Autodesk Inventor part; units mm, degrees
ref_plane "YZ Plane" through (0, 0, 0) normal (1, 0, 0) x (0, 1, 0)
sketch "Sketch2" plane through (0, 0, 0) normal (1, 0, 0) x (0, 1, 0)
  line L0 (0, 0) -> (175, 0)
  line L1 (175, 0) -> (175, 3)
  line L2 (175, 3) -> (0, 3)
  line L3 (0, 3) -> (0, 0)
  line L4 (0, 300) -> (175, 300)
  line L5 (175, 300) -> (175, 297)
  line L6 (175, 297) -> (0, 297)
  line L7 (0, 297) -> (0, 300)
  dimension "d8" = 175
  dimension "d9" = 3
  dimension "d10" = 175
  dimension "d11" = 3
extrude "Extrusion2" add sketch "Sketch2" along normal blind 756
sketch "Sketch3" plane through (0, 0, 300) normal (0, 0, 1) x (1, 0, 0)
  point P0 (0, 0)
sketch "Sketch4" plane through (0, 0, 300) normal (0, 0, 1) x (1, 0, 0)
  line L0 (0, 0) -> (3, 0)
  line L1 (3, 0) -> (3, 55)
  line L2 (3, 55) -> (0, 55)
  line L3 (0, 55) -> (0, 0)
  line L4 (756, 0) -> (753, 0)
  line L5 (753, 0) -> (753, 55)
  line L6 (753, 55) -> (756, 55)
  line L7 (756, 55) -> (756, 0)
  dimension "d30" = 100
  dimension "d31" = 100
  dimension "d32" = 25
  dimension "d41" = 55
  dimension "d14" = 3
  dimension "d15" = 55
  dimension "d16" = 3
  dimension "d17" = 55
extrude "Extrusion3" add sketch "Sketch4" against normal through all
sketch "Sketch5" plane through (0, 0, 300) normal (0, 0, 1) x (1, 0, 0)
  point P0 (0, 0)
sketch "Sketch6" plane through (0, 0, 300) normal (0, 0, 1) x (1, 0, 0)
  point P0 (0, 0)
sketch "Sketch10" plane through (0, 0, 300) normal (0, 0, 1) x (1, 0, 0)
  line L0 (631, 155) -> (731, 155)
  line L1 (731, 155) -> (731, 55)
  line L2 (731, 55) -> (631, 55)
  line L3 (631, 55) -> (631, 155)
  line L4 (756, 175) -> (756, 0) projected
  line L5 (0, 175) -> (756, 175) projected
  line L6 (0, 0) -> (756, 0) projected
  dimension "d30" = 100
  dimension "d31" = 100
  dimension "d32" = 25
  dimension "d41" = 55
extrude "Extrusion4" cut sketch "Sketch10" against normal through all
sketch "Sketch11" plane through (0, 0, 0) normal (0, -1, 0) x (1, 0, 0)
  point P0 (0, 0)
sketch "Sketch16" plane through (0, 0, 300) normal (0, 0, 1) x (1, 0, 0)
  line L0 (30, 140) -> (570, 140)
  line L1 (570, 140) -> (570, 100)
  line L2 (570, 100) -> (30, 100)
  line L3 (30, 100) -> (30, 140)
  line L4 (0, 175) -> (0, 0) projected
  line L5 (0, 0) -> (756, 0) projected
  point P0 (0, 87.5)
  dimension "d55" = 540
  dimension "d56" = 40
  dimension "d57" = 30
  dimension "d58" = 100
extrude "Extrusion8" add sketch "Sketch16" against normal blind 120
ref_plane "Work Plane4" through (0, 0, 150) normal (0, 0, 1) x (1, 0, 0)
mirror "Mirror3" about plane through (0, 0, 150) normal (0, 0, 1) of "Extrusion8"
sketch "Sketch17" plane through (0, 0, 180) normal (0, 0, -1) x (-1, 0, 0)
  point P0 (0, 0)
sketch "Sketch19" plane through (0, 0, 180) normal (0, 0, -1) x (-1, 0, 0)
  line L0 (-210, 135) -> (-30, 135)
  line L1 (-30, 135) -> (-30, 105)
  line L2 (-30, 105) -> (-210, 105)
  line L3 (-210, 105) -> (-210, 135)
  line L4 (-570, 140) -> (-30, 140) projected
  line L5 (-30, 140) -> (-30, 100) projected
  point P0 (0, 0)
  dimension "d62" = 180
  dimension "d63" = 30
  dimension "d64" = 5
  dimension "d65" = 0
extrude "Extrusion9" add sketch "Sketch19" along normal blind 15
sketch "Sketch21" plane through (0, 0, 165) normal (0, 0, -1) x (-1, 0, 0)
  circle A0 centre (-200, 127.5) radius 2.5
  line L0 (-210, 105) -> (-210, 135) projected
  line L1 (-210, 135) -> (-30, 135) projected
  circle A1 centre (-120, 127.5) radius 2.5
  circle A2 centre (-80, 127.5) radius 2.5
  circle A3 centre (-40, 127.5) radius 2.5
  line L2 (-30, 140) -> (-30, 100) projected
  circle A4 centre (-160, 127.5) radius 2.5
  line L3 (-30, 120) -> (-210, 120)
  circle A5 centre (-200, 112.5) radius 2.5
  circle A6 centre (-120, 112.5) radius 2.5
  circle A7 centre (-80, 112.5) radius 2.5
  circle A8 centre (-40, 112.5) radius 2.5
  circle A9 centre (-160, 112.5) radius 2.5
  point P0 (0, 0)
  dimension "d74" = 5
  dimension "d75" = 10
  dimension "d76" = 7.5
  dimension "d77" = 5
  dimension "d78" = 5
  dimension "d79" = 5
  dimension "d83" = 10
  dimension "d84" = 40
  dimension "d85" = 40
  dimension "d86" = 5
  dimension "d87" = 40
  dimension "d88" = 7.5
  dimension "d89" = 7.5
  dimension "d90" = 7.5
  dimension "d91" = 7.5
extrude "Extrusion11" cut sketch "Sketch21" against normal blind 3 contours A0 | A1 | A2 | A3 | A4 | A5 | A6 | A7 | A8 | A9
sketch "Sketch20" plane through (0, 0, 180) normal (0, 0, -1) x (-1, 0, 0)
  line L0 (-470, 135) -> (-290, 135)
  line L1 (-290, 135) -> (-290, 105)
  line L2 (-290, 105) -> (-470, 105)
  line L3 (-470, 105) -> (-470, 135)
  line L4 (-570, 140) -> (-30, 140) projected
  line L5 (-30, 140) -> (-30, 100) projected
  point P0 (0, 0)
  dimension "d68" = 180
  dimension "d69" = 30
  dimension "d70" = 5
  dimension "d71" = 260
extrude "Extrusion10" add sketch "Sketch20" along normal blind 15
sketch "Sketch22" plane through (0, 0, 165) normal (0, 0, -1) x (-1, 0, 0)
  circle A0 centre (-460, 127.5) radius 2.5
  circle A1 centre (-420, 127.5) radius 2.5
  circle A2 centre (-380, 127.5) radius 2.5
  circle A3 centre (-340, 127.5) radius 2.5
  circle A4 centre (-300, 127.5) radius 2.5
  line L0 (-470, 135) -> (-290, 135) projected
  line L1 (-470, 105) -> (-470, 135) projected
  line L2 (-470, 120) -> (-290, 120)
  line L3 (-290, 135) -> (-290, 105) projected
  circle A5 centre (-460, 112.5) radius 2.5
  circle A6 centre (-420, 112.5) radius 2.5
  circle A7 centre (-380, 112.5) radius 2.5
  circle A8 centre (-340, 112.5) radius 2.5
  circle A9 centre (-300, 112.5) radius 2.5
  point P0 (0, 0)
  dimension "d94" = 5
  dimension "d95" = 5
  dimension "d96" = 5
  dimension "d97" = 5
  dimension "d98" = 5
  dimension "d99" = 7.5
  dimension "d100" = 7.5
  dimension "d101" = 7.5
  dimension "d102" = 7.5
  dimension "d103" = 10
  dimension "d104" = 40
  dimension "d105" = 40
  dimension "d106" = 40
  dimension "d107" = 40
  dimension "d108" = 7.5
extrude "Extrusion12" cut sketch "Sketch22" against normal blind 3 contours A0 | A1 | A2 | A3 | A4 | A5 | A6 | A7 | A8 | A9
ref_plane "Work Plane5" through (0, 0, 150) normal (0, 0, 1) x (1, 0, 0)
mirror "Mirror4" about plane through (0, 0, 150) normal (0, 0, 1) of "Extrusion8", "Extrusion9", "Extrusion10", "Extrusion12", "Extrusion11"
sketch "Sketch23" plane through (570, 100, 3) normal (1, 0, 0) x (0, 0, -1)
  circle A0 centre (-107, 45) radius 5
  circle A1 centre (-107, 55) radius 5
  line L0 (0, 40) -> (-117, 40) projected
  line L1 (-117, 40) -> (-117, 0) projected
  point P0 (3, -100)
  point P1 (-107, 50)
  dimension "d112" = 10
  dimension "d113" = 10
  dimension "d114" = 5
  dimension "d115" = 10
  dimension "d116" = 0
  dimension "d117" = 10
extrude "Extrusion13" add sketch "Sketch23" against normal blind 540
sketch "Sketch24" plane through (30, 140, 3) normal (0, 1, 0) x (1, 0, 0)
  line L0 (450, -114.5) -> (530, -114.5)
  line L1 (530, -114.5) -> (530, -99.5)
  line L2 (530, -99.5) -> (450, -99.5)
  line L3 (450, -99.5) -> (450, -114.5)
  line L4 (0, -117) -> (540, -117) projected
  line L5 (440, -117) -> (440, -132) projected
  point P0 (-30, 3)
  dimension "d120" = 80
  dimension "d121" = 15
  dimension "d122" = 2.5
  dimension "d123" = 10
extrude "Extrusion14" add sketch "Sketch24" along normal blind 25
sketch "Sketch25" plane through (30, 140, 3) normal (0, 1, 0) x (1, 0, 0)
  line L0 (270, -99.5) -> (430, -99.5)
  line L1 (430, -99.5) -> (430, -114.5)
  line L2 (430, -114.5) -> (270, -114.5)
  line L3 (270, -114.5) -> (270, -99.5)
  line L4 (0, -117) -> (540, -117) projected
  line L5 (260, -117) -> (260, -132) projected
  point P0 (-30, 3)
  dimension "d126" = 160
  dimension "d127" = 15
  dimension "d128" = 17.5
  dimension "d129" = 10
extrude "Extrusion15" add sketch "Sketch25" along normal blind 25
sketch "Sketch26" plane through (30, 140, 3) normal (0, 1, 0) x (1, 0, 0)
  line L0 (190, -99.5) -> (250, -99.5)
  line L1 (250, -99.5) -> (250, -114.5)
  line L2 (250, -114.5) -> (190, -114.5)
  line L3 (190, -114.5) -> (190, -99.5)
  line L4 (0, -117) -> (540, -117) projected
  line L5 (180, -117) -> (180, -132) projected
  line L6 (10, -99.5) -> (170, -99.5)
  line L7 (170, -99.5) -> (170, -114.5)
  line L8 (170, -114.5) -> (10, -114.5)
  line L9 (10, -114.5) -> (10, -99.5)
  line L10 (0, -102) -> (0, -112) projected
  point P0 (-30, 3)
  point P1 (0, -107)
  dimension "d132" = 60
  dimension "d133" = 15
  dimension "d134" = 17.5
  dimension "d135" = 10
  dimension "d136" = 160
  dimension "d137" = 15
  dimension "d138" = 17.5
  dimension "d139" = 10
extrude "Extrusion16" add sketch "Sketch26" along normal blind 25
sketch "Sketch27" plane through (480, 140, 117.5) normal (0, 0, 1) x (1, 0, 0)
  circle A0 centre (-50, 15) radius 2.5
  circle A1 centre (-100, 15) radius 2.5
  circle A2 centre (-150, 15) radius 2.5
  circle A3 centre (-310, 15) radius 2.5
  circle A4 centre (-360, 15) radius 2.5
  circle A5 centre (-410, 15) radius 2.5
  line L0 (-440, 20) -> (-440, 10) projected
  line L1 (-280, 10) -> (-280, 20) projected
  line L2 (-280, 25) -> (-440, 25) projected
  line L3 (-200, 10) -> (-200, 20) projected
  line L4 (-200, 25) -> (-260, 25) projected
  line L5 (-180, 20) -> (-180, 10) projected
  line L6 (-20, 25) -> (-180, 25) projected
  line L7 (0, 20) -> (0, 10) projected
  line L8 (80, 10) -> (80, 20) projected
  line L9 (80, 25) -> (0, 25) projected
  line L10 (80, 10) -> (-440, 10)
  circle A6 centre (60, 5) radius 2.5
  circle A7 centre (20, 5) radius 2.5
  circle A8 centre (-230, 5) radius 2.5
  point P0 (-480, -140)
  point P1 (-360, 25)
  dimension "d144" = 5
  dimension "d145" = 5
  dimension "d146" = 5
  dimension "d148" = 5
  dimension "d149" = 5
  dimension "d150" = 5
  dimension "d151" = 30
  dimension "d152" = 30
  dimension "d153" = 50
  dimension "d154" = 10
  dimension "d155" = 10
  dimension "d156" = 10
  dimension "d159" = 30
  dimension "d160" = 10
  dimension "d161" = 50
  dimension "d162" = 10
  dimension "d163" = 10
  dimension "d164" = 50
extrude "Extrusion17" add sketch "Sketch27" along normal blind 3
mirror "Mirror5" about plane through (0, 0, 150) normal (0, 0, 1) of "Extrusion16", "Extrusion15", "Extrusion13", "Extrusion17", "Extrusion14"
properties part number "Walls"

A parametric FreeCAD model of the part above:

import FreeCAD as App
import Part
import Sketcher

V = App.Vector


def add_polygon(sketch, points):
    """Adds a closed chain of lines whose ends are joined by coincident constraints."""
    first, n = sketch.GeometryCount, len(points)
    for a, b in zip(points, points[1:] + points[:1]):
        sketch.addGeometry(Part.LineSegment(App.Vector(*a, 0), App.Vector(*b, 0)), False)
    for i in range(n):
        sketch.addConstraint(Sketcher.Constraint("Coincident", first + i, 2, first + (i + 1) % n, 1))

doc = App.newDocument("Part")
body = doc.addObject("PartDesign::Body", "Body")
body.AllowCompound = True

sketch1 = body.newObject("Sketcher::SketchObject", "Sketch")
sketch1.AttachmentSupport = (doc.getObject("YZ_Plane"), [""])
sketch1.MapMode = "FlatFace"
add_polygon(sketch1, [(0, 3), (0, 0), (175, 0), (175, 3)])
add_polygon(sketch1, [(175, 300), (0, 300), (0, 297), (175, 297)])
sketch1.addConstraint(Sketcher.Constraint("Vertical", 0))
sketch1.addConstraint(Sketcher.Constraint("Horizontal", 1))
sketch1.addConstraint(Sketcher.Constraint("Vertical", 2))
sketch1.addConstraint(Sketcher.Constraint("Horizontal", 3))
sketch1.addConstraint(Sketcher.Constraint("Horizontal", 4))
sketch1.addConstraint(Sketcher.Constraint("Vertical", 5))
sketch1.addConstraint(Sketcher.Constraint("Horizontal", 6))
sketch1.addConstraint(Sketcher.Constraint("Vertical", 7))
sketch1.addConstraint(Sketcher.Constraint("Coincident", 0, 2, -1, 1))
sketch1.addConstraint(Sketcher.Constraint("PointOnObject", 4, 2, -2))
sketch1.addConstraint(Sketcher.Constraint("Vertical", 2, 2, 6, 2))
sketch1.addConstraint(Sketcher.Constraint("Equal", 2, 5))
sketch1.addConstraint(Sketcher.Constraint("DistanceX", 1, 1, 1, 2, 175.0))
sketch1.addConstraint(Sketcher.Constraint("DistanceY", 0, 2, 0, 1, 3.0))
sketch1.addConstraint(Sketcher.Constraint("DistanceY", -1, 1, 4, 2, 300.0))
pad1 = body.newObject("PartDesign::Pad", "Pad")
pad1.Profile = sketch1
pad1.Length = 756

sketch2 = body.newObject("Sketcher::SketchObject", "Sketch001")
sketch2.AttachmentSupport = (doc.getObject("XY_Plane"), [""])
sketch2.MapMode = "FlatFace"
sketch2.AttachmentOffset = App.Placement(V(0, 0, 300), App.Rotation())
add_polygon(sketch2, [(0, 55), (0, 0), (3, 0), (3, 55)])
add_polygon(sketch2, [(753, 0), (756, 0), (756, 55), (753, 55)])
sketch2.addConstraint(Sketcher.Constraint("Vertical", 0))
sketch2.addConstraint(Sketcher.Constraint("Horizontal", 1))
sketch2.addConstraint(Sketcher.Constraint("Vertical", 2))
sketch2.addConstraint(Sketcher.Constraint("Horizontal", 3))
sketch2.addConstraint(Sketcher.Constraint("Horizontal", 4))
sketch2.addConstraint(Sketcher.Constraint("Vertical", 5))
sketch2.addConstraint(Sketcher.Constraint("Horizontal", 6))
sketch2.addConstraint(Sketcher.Constraint("Vertical", 7))
sketch2.addConstraint(Sketcher.Constraint("Coincident", 0, 2, -1, 1))
sketch2.addConstraint(Sketcher.Constraint("PointOnObject", 4, 2, -1))
sketch2.addConstraint(Sketcher.Constraint("Horizontal", 3, 2, 5, 2))
sketch2.addConstraint(Sketcher.Constraint("Equal", 3, 4))
sketch2.addConstraint(Sketcher.Constraint("DistanceX", 1, 1, 1, 2, 3.0))
sketch2.addConstraint(Sketcher.Constraint("DistanceY", 0, 2, 0, 1, 55.0))
sketch2.addConstraint(Sketcher.Constraint("DistanceX", -1, 1, 4, 2, 756.0))
pad2 = body.newObject("PartDesign::Pad", "Pad001")
pad2.Profile = sketch2
pad2.Type = "UpToLast"
pad2.Reversed = True

sketch3 = body.newObject("Sketcher::SketchObject", "Sketch002")
sketch3.AttachmentSupport = (doc.getObject("XY_Plane"), [""])
sketch3.MapMode = "FlatFace"
sketch3.AttachmentOffset = App.Placement(V(0, 0, 300), App.Rotation())
add_polygon(sketch3, [(731, 155), (631, 155), (631, 55), (731, 55)])
sketch3.addConstraint(Sketcher.Constraint("Horizontal", 0))
sketch3.addConstraint(Sketcher.Constraint("Vertical", 1))
sketch3.addConstraint(Sketcher.Constraint("Horizontal", 2))
sketch3.addConstraint(Sketcher.Constraint("Vertical", 3))
sketch3.addConstraint(Sketcher.Constraint("Equal", 2, 1))
sketch3.addConstraint(Sketcher.Constraint("DistanceX", 0, 2, 0, 1, 100.0))
sketch3.addConstraint(Sketcher.Constraint("DistanceY", -1, 1, 1, 2, 55.0))
sketch3.addConstraint(Sketcher.Constraint("DistanceX", -1, 1, 0, 2, 631.0))
pocket1 = body.newObject("PartDesign::Pocket", "Pocket")
pocket1.Profile = sketch3
pocket1.Type = "ThroughAll"

sketch4 = body.newObject("Sketcher::SketchObject", "Sketch003")
sketch4.AttachmentSupport = (doc.getObject("XY_Plane"), [""])
sketch4.MapMode = "FlatFace"
sketch4.AttachmentOffset = App.Placement(V(0, 0, 300), App.Rotation())
add_polygon(sketch4, [(570, 140), (30, 140), (30, 100), (570, 100)])
sketch4.addConstraint(Sketcher.Constraint("Horizontal", 0))
sketch4.addConstraint(Sketcher.Constraint("Vertical", 1))
sketch4.addConstraint(Sketcher.Constraint("Horizontal", 2))
sketch4.addConstraint(Sketcher.Constraint("Vertical", 3))
sketch4.addConstraint(Sketcher.Constraint("DistanceX", 0, 2, 0, 1, 540.0))
sketch4.addConstraint(Sketcher.Constraint("DistanceY", 1, 2, 1, 1, 40.0))
sketch4.addConstraint(Sketcher.Constraint("DistanceX", -1, 1, 0, 2, 30.0))
sketch4.addConstraint(Sketcher.Constraint("DistanceY", -1, 1, 1, 2, 100.0))
pad3 = body.newObject("PartDesign::Pad", "Pad002")
pad3.Profile = sketch4
pad3.Length = 120
pad3.Reversed = True
doc.recompute()

datumplane = body.newObject("PartDesign::Plane", "DatumPlane")
datumplane.AttachmentSupport = (doc.getObject("XY_Plane"), [""])
datumplane.MapMode = "FlatFace"
datumplane.AttachmentOffset = App.Placement(V(0, 0, 150), App.Rotation())
mirrored = body.newObject("PartDesign::Mirrored", "Mirrored")
mirrored.Originals = [pad3]
mirrored.MirrorPlane = (datumplane, [""])
body.Tip = mirrored

sketch5 = body.newObject("Sketcher::SketchObject", "Sketch004")
sketch5.AttachmentSupport = (doc.getObject("XY_Plane"), [""])
sketch5.MapMode = "FlatFace"
sketch5.AttachmentOffset = App.Placement(V(0, 0, 180), App.Rotation())
add_polygon(sketch5, [(30, 135), (210, 135), (210, 105), (30, 105)])
sketch5.addConstraint(Sketcher.Constraint("Horizontal", 0))
sketch5.addConstraint(Sketcher.Constraint("Vertical", 1))
sketch5.addConstraint(Sketcher.Constraint("Horizontal", 2))
sketch5.addConstraint(Sketcher.Constraint("Vertical", 3))
sketch5.addConstraint(Sketcher.Constraint("DistanceX", 0, 1, 0, 2, 180.0))
sketch5.addConstraint(Sketcher.Constraint("DistanceY", 1, 2, 1, 1, 30.0))
sketch5.addConstraint(Sketcher.Constraint("DistanceX", -1, 1, 2, 2, 30.0))
sketch5.addConstraint(Sketcher.Constraint("DistanceY", -1, 1, 0, 2, 135.0))
pad4 = body.newObject("PartDesign::Pad", "Pad003")
pad4.Profile = sketch5
pad4.Length = 15
pad4.Reversed = True

sketch6 = body.newObject("Sketcher::SketchObject", "Sketch005")
sketch6.AttachmentSupport = (doc.getObject("XY_Plane"), [""])
sketch6.MapMode = "FlatFace"
sketch6.AttachmentOffset = App.Placement(V(0, 0, 165), App.Rotation())
sketch6.addGeometry(Part.Circle(V(200, 127.5, 0), V(0, 0, 1), 2.5), False)
sketch6.addGeometry(Part.Circle(V(120, 127.5, 0), V(0, 0, 1), 2.5), False)
sketch6.addGeometry(Part.Circle(V(80, 127.5, 0), V(0, 0, 1), 2.5), False)
sketch6.addGeometry(Part.Circle(V(40, 127.5, 0), V(0, 0, 1), 2.5), False)
sketch6.addGeometry(Part.Circle(V(160, 127.5, 0), V(0, 0, 1), 2.5), False)
sketch6.addGeometry(Part.Circle(V(200, 112.5, 0), V(0, 0, 1), 2.5), False)
sketch6.addGeometry(Part.Circle(V(120, 112.5, 0), V(0, 0, 1), 2.5), False)
sketch6.addGeometry(Part.Circle(V(80, 112.5, 0), V(0, 0, 1), 2.5), False)
sketch6.addGeometry(Part.Circle(V(40, 112.5, 0), V(0, 0, 1), 2.5), False)
sketch6.addGeometry(Part.Circle(V(160, 112.5, 0), V(0, 0, 1), 2.5), False)
sketch6.addConstraint(Sketcher.Constraint("Equal", 0, 1))
sketch6.addConstraint(Sketcher.Constraint("Equal", 1, 2))
sketch6.addConstraint(Sketcher.Constraint("Equal", 2, 3))
sketch6.addConstraint(Sketcher.Constraint("Equal", 3, 4))
sketch6.addConstraint(Sketcher.Constraint("Equal", 4, 5))
sketch6.addConstraint(Sketcher.Constraint("Equal", 5, 6))
sketch6.addConstraint(Sketcher.Constraint("Equal", 6, 7))
sketch6.addConstraint(Sketcher.Constraint("Equal", 7, 8))
sketch6.addConstraint(Sketcher.Constraint("Equal", 8, 9))
sketch6.addConstraint(Sketcher.Constraint("Horizontal", 0, 3, 1, 3))
sketch6.addConstraint(Sketcher.Constraint("Horizontal", 1, 3, 2, 3))
sketch6.addConstraint(Sketcher.Constraint("Horizontal", 2, 3, 3, 3))
sketch6.addConstraint(Sketcher.Constraint("Horizontal", 3, 3, 4, 3))
sketch6.addConstraint(Sketcher.Constraint("Horizontal", 5, 3, 6, 3))
sketch6.addConstraint(Sketcher.Constraint("Horizontal", 6, 3, 7, 3))
sketch6.addConstraint(Sketcher.Constraint("Horizontal", 7, 3, 8, 3))
sketch6.addConstraint(Sketcher.Constraint("Horizontal", 8, 3, 9, 3))
sketch6.addConstraint(Sketcher.Constraint("Vertical", 0, 3, 5, 3))
sketch6.addConstraint(Sketcher.Constraint("Vertical", 1, 3, 6, 3))
sketch6.addConstraint(Sketcher.Constraint("Vertical", 2, 3, 7, 3))
sketch6.addConstraint(Sketcher.Constraint("Vertical", 3, 3, 8, 3))
sketch6.addConstraint(Sketcher.Constraint("Vertical", 4, 3, 9, 3))
sketch6.addConstraint(Sketcher.Constraint("Diameter", 0, 5.0))
sketch6.addConstraint(Sketcher.Constraint("DistanceX", -1, 1, 3, 3, 40.0))
sketch6.addConstraint(Sketcher.Constraint("DistanceX", 2, 3, 1, 3, 40.0))
sketch6.addConstraint(Sketcher.Constraint("DistanceX", 3, 3, 2, 3, 40.0))
sketch6.addConstraint(Sketcher.Constraint("DistanceX", 4, 3, 0, 3, 40.0))
sketch6.addConstraint(Sketcher.Constraint("DistanceX", 1, 3, 4, 3, 40.0))
sketch6.addConstraint(Sketcher.Constraint("DistanceY", 5, 3, 0, 3, 15.0))
sketch6.addConstraint(Sketcher.Constraint("DistanceY", -1, 1, 0, 3, 127.5))
pocket2 = body.newObject("PartDesign::Pocket", "Pocket001")
pocket2.Profile = sketch6
pocket2.Length = 3
pocket2.Reversed = True

sketch7 = body.newObject("Sketcher::SketchObject", "Sketch006")
sketch7.AttachmentSupport = (doc.getObject("XY_Plane"), [""])
sketch7.MapMode = "FlatFace"
sketch7.AttachmentOffset = App.Placement(V(0, 0, 180), App.Rotation())
add_polygon(sketch7, [(290, 135), (470, 135), (470, 105), (290, 105)])
sketch7.addConstraint(Sketcher.Constraint("Horizontal", 0))
sketch7.addConstraint(Sketcher.Constraint("Vertical", 1))
sketch7.addConstraint(Sketcher.Constraint("Horizontal", 2))
sketch7.addConstraint(Sketcher.Constraint("Vertical", 3))
sketch7.addConstraint(Sketcher.Constraint("DistanceX", 0, 1, 0, 2, 180.0))
sketch7.addConstraint(Sketcher.Constraint("DistanceY", 1, 2, 1, 1, 30.0))
sketch7.addConstraint(Sketcher.Constraint("DistanceX", -1, 1, 0, 2, 470.0))
sketch7.addConstraint(Sketcher.Constraint("DistanceY", -1, 1, 0, 2, 135.0))
pad5 = body.newObject("PartDesign::Pad", "Pad004")
pad5.Profile = sketch7
pad5.Length = 15
pad5.Reversed = True

sketch8 = body.newObject("Sketcher::SketchObject", "Sketch007")
sketch8.AttachmentSupport = (doc.getObject("XY_Plane"), [""])
sketch8.MapMode = "FlatFace"
sketch8.AttachmentOffset = App.Placement(V(0, 0, 165), App.Rotation())
sketch8.addGeometry(Part.Circle(V(460, 127.5, 0), V(0, 0, 1), 2.5), False)
sketch8.addGeometry(Part.Circle(V(420, 127.5, 0), V(0, 0, 1), 2.5), False)
sketch8.addGeometry(Part.Circle(V(380, 127.5, 0), V(0, 0, 1), 2.5), False)
sketch8.addGeometry(Part.Circle(V(340, 127.5, 0), V(0, 0, 1), 2.5), False)
sketch8.addGeometry(Part.Circle(V(300, 127.5, 0), V(0, 0, 1), 2.5), False)
sketch8.addGeometry(Part.Circle(V(460, 112.5, 0), V(0, 0, 1), 2.5), False)
sketch8.addGeometry(Part.Circle(V(420, 112.5, 0), V(0, 0, 1), 2.5), False)
sketch8.addGeometry(Part.Circle(V(380, 112.5, 0), V(0, 0, 1), 2.5), False)
sketch8.addGeometry(Part.Circle(V(340, 112.5, 0), V(0, 0, 1), 2.5), False)
sketch8.addGeometry(Part.Circle(V(300, 112.5, 0), V(0, 0, 1), 2.5), False)
sketch8.addConstraint(Sketcher.Constraint("Equal", 0, 1))
sketch8.addConstraint(Sketcher.Constraint("Equal", 1, 2))
sketch8.addConstraint(Sketcher.Constraint("Equal", 2, 3))
sketch8.addConstraint(Sketcher.Constraint("Equal", 3, 4))
sketch8.addConstraint(Sketcher.Constraint("Equal", 4, 5))
sketch8.addConstraint(Sketcher.Constraint("Equal", 5, 6))
sketch8.addConstraint(Sketcher.Constraint("Equal", 6, 7))
sketch8.addConstraint(Sketcher.Constraint("Equal", 7, 8))
sketch8.addConstraint(Sketcher.Constraint("Equal", 8, 9))
sketch8.addConstraint(Sketcher.Constraint("Horizontal", 0, 3, 1, 3))
sketch8.addConstraint(Sketcher.Constraint("Horizontal", 1, 3, 2, 3))
sketch8.addConstraint(Sketcher.Constraint("Horizontal", 2, 3, 3, 3))
sketch8.addConstraint(Sketcher.Constraint("Horizontal", 3, 3, 4, 3))
sketch8.addConstraint(Sketcher.Constraint("Horizontal", 5, 3, 6, 3))
sketch8.addConstraint(Sketcher.Constraint("Horizontal", 6, 3, 7, 3))
sketch8.addConstraint(Sketcher.Constraint("Horizontal", 7, 3, 8, 3))
sketch8.addConstraint(Sketcher.Constraint("Horizontal", 8, 3, 9, 3))
sketch8.addConstraint(Sketcher.Constraint("Vertical", 0, 3, 5, 3))
sketch8.addConstraint(Sketcher.Constraint("Vertical", 1, 3, 6, 3))
sketch8.addConstraint(Sketcher.Constraint("Vertical", 2, 3, 7, 3))
sketch8.addConstraint(Sketcher.Constraint("Vertical", 3, 3, 8, 3))
sketch8.addConstraint(Sketcher.Constraint("Vertical", 4, 3, 9, 3))
sketch8.addConstraint(Sketcher.Constraint("Diameter", 0, 5.0))
sketch8.addConstraint(Sketcher.Constraint("DistanceX", 1, 3, 0, 3, 40.0))
sketch8.addConstraint(Sketcher.Constraint("DistanceX", 2, 3, 1, 3, 40.0))
sketch8.addConstraint(Sketcher.Constraint("DistanceX", 3, 3, 2, 3, 40.0))
sketch8.addConstraint(Sketcher.Constraint("DistanceX", 4, 3, 3, 3, 40.0))
sketch8.addConstraint(Sketcher.Constraint("DistanceX", -1, 1, 0, 3, 460.0))
sketch8.addConstraint(Sketcher.Constraint("DistanceY", 5, 3, 0, 3, 15.0))
sketch8.addConstraint(Sketcher.Constraint("DistanceY", -1, 1, 0, 3, 127.5))
pocket3 = body.newObject("PartDesign::Pocket", "Pocket002")
pocket3.Profile = sketch8
pocket3.Length = 3
pocket3.Reversed = True
doc.recompute()

datumplane2 = body.newObject("PartDesign::Plane", "DatumPlane001")
datumplane2.AttachmentSupport = (doc.getObject("XY_Plane"), [""])
datumplane2.MapMode = "FlatFace"
datumplane2.AttachmentOffset = App.Placement(V(0, 0, 150), App.Rotation())
mirrored2 = body.newObject("PartDesign::Mirrored", "Mirrored001")
mirrored2.Originals = [pad3, pad4, pad5, pocket3, pocket2]
mirrored2.MirrorPlane = (datumplane2, [""])
body.Tip = mirrored2

sketch9 = body.newObject("Sketcher::SketchObject", "Sketch008")
sketch9.AttachmentSupport = (doc.getObject("YZ_Plane"), [""])
sketch9.MapMode = "FlatFace"
sketch9.AttachmentOffset = App.Placement(V(0, 0, 570), App.Rotation())
sketch9.addGeometry(Part.Circle(V(145, 110, 0), V(0, 0, 1), 5), False)
sketch9.addGeometry(Part.Circle(V(155, 110, 0), V(0, 0, 1), 5), False)
sketch9.addConstraint(Sketcher.Constraint("Equal", 0, 1))
sketch9.addConstraint(Sketcher.Constraint("Horizontal", 0, 3, 1, 3))
sketch9.addConstraint(Sketcher.Constraint("Diameter", 0, 10.0))
sketch9.addConstraint(Sketcher.Constraint("DistanceX", 0, 3, 1, 3, 10.0))
sketch9.addConstraint(Sketcher.Constraint("DistanceX", -1, 1, 0, 3, 145.0))
sketch9.addConstraint(Sketcher.Constraint("DistanceY", -1, 1, 0, 3, 110.0))
pad6 = body.newObject("PartDesign::Pad", "Pad005")
pad6.Profile = sketch9
pad6.Length = 540
pad6.Reversed = True

sketch10 = body.newObject("Sketcher::SketchObject", "Sketch009")
sketch10.AttachmentSupport = (doc.getObject("XZ_Plane"), [""])
sketch10.MapMode = "FlatFace"
sketch10.AttachmentOffset = App.Placement(V(0, 0, -140), App.Rotation())
add_polygon(sketch10, [(480, 102), (480, 118), (560, 118), (560, 102)])
sketch10.addConstraint(Sketcher.Constraint("Vertical", 0))
sketch10.addConstraint(Sketcher.Constraint("Horizontal", 1))
sketch10.addConstraint(Sketcher.Constraint("Vertical", 2))
sketch10.addConstraint(Sketcher.Constraint("Horizontal", 3))
sketch10.addConstraint(Sketcher.Constraint("DistanceX", 1, 1, 1, 2, 80.0))
sketch10.addConstraint(Sketcher.Constraint("DistanceY", 0, 1, 0, 2, 15.0))
sketch10.addConstraint(Sketcher.Constraint("DistanceX", -1, 1, 0, 2, 480.0))
sketch10.addConstraint(Sketcher.Constraint("DistanceY", -1, 1, 0, 2, 117.5))
pad7 = body.newObject("PartDesign::Pad", "Pad006")
pad7.Profile = sketch10
pad7.Length = 25
pad7.Reversed = True

sketch11 = body.newObject("Sketcher::SketchObject", "Sketch010")
sketch11.AttachmentSupport = (doc.getObject("XZ_Plane"), [""])
sketch11.MapMode = "FlatFace"
sketch11.AttachmentOffset = App.Placement(V(0, 0, -140), App.Rotation())
add_polygon(sketch11, [(460, 102), (300, 102), (300, 118), (460, 118)])
sketch11.addConstraint(Sketcher.Constraint("Horizontal", 0))
sketch11.addConstraint(Sketcher.Constraint("Vertical", 1))
sketch11.addConstraint(Sketcher.Constraint("Horizontal", 2))
sketch11.addConstraint(Sketcher.Constraint("Vertical", 3))
sketch11.addConstraint(Sketcher.Constraint("DistanceX", 0, 2, 0, 1, 160.0))
sketch11.addConstraint(Sketcher.Constraint("DistanceY", 1, 1, 1, 2, 15.0))
sketch11.addConstraint(Sketcher.Constraint("DistanceX", -1, 1, 0, 2, 300.0))
sketch11.addConstraint(Sketcher.Constraint("DistanceY", -1, 1, 0, 2, 102.5))
pad8 = body.newObject("PartDesign::Pad", "Pad007")
pad8.Profile = sketch11
pad8.Length = 25
pad8.Reversed = True

sketch12 = body.newObject("Sketcher::SketchObject", "Sketch011")
sketch12.AttachmentSupport = (doc.getObject("XZ_Plane"), [""])
sketch12.MapMode = "FlatFace"
sketch12.AttachmentOffset = App.Placement(V(0, 0, -140), App.Rotation())
add_polygon(sketch12, [(280, 102), (220, 102), (220, 118), (280, 118)])
add_polygon(sketch12, [(200, 102), (40, 102), (40, 118), (200, 118)])
sketch12.addConstraint(Sketcher.Constraint("Horizontal", 0))
sketch12.addConstraint(Sketcher.Constraint("Vertical", 1))
sketch12.addConstraint(Sketcher.Constraint("Horizontal", 2))
sketch12.addConstraint(Sketcher.Constraint("Vertical", 3))
sketch12.addConstraint(Sketcher.Constraint("Horizontal", 4))
sketch12.addConstraint(Sketcher.Constraint("Vertical", 5))
sketch12.addConstraint(Sketcher.Constraint("Horizontal", 6))
sketch12.addConstraint(Sketcher.Constraint("Vertical", 7))
sketch12.addConstraint(Sketcher.Constraint("Horizontal", 3, 2, 4, 2))
sketch12.addConstraint(Sketcher.Constraint("Horizontal", 2, 2, 5, 2))
sketch12.addConstraint(Sketcher.Constraint("DistanceX", 0, 2, 0, 1, 60.0))
sketch12.addConstraint(Sketcher.Constraint("DistanceX", 4, 2, 4, 1, 160.0))
sketch12.addConstraint(Sketcher.Constraint("DistanceY", 1, 1, 1, 2, 15.0))
sketch12.addConstraint(Sketcher.Constraint("DistanceX", -1, 1, 0, 2, 220.0))
sketch12.addConstraint(Sketcher.Constraint("DistanceX", -1, 1, 4, 2, 40.0))
sketch12.addConstraint(Sketcher.Constraint("DistanceY", -1, 1, 0, 2, 102.5))
pad9 = body.newObject("PartDesign::Pad", "Pad008")
pad9.Profile = sketch12
pad9.Length = 25
pad9.Reversed = True

sketch13 = body.newObject("Sketcher::SketchObject", "Sketch012")
sketch13.AttachmentSupport = (doc.getObject("XY_Plane"), [""])
sketch13.MapMode = "FlatFace"
sketch13.AttachmentOffset = App.Placement(V(0, 0, 117.5), App.Rotation())
sketch13.addGeometry(Part.Circle(V(430, 155, 0), V(0, 0, 1), 2.5), False)
sketch13.addGeometry(Part.Circle(V(380, 155, 0), V(0, 0, 1), 2.5), False)
sketch13.addGeometry(Part.Circle(V(330, 155, 0), V(0, 0, 1), 2.5), False)
sketch13.addGeometry(Part.Circle(V(170, 155, 0), V(0, 0, 1), 2.5), False)
sketch13.addGeometry(Part.Circle(V(120, 155, 0), V(0, 0, 1), 2.5), False)
sketch13.addGeometry(Part.Circle(V(70, 155, 0), V(0, 0, 1), 2.5), False)
sketch13.addGeometry(Part.Circle(V(540, 145, 0), V(0, 0, 1), 2.5), False)
sketch13.addGeometry(Part.Circle(V(500, 145, 0), V(0, 0, 1), 2.5), False)
sketch13.addGeometry(Part.Circle(V(250, 145, 0), V(0, 0, 1), 2.5), False)
sketch13.addConstraint(Sketcher.Constraint("Equal", 0, 1))
sketch13.addConstraint(Sketcher.Constraint("Equal", 1, 2))
sketch13.addConstraint(Sketcher.Constraint("Equal", 2, 3))
sketch13.addConstraint(Sketcher.Constraint("Equal", 3, 4))
sketch13.addConstraint(Sketcher.Constraint("Equal", 4, 5))
sketch13.addConstraint(Sketcher.Constraint("Equal", 5, 6))
sketch13.addConstraint(Sketcher.Constraint("Equal", 6, 7))
sketch13.addConstraint(Sketcher.Constraint("Equal", 7, 8))
sketch13.addConstraint(Sketcher.Constraint("Horizontal", 0, 3, 1, 3))
sketch13.addConstraint(Sketcher.Constraint("Horizontal", 1, 3, 2, 3))
sketch13.addConstraint(Sketcher.Constraint("Horizontal", 2, 3, 3, 3))
sketch13.addConstraint(Sketcher.Constraint("Horizontal", 3, 3, 4, 3))
sketch13.addConstraint(Sketcher.Constraint("Horizontal", 4, 3, 5, 3))
sketch13.addConstraint(Sketcher.Constraint("Horizontal", 6, 3, 7, 3))
sketch13.addConstraint(Sketcher.Constraint("Horizontal", 7, 3, 8, 3))
sketch13.addConstraint(Sketcher.Constraint("Diameter", 0, 5.0))
sketch13.addConstraint(Sketcher.Constraint("DistanceX", 1, 3, 0, 3, 50.0))
sketch13.addConstraint(Sketcher.Constraint("DistanceX", 2, 3, 1, 3, 50.0))
sketch13.addConstraint(Sketcher.Constraint("DistanceX", 4, 3, 3, 3, 50.0))
sketch13.addConstraint(Sketcher.Constraint("DistanceX", 5, 3, 4, 3, 50.0))
sketch13.addConstraint(Sketcher.Constraint("DistanceY", 6, 3, 0, 3, 10.0))
sketch13.addConstraint(Sketcher.Constraint("DistanceX", -1, 1, 0, 3, 430.0))
sketch13.addConstraint(Sketcher.Constraint("DistanceY", -1, 1, 0, 3, 155.0))
sketch13.addConstraint(Sketcher.Constraint("DistanceX", -1, 1, 3, 3, 170.0))
sketch13.addConstraint(Sketcher.Constraint("DistanceX", -1, 1, 6, 3, 540.0))
sketch13.addConstraint(Sketcher.Constraint("DistanceX", -1, 1, 7, 3, 500.0))
sketch13.addConstraint(Sketcher.Constraint("DistanceX", -1, 1, 8, 3, 250.0))
pad10 = body.newObject("PartDesign::Pad", "Pad009")
pad10.Profile = sketch13
pad10.Length = 3
doc.recompute()

datumplane3 = body.newObject("PartDesign::Plane", "DatumPlane002")
datumplane3.AttachmentSupport = (doc.getObject("XY_Plane"), [""])
datumplane3.MapMode = "FlatFace"
datumplane3.AttachmentOffset = App.Placement(V(0, 0, 150), App.Rotation())
mirrored3 = body.newObject("PartDesign::Mirrored", "Mirrored002")
mirrored3.Originals = [pad9, pad8, pad6, pad10, pad7]
mirrored3.MirrorPlane = (datumplane3, [""])
body.Tip = mirrored3

doc.recompute()
